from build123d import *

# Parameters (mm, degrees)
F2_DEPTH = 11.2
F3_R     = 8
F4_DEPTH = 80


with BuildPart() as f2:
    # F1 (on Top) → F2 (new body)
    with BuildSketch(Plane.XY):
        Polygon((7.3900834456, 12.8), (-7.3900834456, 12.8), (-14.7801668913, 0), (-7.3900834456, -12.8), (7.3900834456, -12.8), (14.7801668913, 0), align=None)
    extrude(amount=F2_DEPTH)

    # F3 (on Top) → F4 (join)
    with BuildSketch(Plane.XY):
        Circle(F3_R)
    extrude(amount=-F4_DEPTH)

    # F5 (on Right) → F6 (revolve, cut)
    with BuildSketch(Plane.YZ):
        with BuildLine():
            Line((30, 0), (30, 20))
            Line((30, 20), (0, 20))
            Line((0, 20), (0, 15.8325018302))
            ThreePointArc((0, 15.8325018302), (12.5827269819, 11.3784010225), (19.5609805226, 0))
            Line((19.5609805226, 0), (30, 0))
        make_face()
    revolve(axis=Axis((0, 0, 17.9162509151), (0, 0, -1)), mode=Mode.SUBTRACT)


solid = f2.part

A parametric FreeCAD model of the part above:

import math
import FreeCAD as App
import Part
import Sketcher

V = App.Vector
Q = App.Units.Quantity


def add_polygon(sketch, points):
    """Adds a closed chain of lines whose ends are joined by coincident constraints."""
    first, n = sketch.GeometryCount, len(points)
    for a, b in zip(points, points[1:] + points[:1]):
        sketch.addGeometry(Part.LineSegment(App.Vector(*a, 0), App.Vector(*b, 0)), False)
    for i in range(n):
        sketch.addConstraint(Sketcher.Constraint("Coincident", first + i, 2, first + (i + 1) % n, 1))

doc = App.newDocument("Part")
params = doc.addObject("Spreadsheet::Sheet", "Params")
for row, (alias, value) in enumerate([
    ("pad1_length", "11.2 mm"),
    ("sketch2_diameter", "16 mm"),
    ("pad2_length", "80 mm"),
    ("sketch3_radius", "20 mm"),
    ("sketch3_width", "30 mm"),
    ("sketch3_height", "20 mm"),
    ("groove_angle", "360 deg"),
], start=1):
    params.set(f"A{row}", alias)
    params.set(f"B{row}", "=" + value)
    params.setAlias(f"B{row}", alias)

body = doc.addObject("PartDesign::Body", "Body")

# Sketch on XY plane
sketch1 = body.newObject("Sketcher::SketchObject", "Sketch")
sketch1.AttachmentSupport = (doc.getObject("XY_Plane"), [""])
sketch1.MapMode = "FlatFace"
add_polygon(sketch1, [(7, 13), (-7, 13), (-15, 0), (-7, -13), (7, -13), (15, 0)])  # lines 0-5
sketch1.addConstraint([
    Sketcher.Constraint("Horizontal", 0),
    Sketcher.Constraint("Horizontal", 3),
    Sketcher.Constraint("Symmetric", 0, 2, 3, 2, -1, 1),
    Sketcher.Constraint("Symmetric", 1, 2, 4, 2, -1, 1),
    Sketcher.Constraint("PointOnObject", 1, 2, -1),
    Sketcher.Constraint("Parallel", 2, 5),
    Sketcher.Constraint("Vertical", 0, 2, 2, 2),
    Sketcher.Constraint("Angle", 1, Q("-120 deg")),
    Sketcher.Constraint("DistanceY", -1, 1, 0, 2, 12.8),
    Sketcher.Constraint("DistanceX", 0, 2, 0, 1, 14.780167),
])
pad1 = body.newObject("PartDesign::Pad", "Pad")
pad1.Profile = sketch1
pad1.setExpression("Length", "Params.pad1_length")

# Sketch on XY plane
sketch2 = body.newObject("Sketcher::SketchObject", "Sketch001")
sketch2.AttachmentSupport = (doc.getObject("XY_Plane"), [""])
sketch2.MapMode = "FlatFace"
sketch2.addGeometry(Part.Circle(V(0, 0, 0), V(0, 0, 1), 8), False)
sketch2.addConstraint([
    Sketcher.Constraint("Coincident", 0, 3, -1, 1),
    Sketcher.Constraint("Diameter", 0, 16.0),
])
sketch2.setExpression("Constraints[1]", "Params.sketch2_diameter")
pad2 = body.newObject("PartDesign::Pad", "Pad001")
pad2.Profile = sketch2
pad2.setExpression("Length", "Params.pad2_length")
pad2.Reversed = True

# Sketch on YZ plane
sketch3 = body.newObject("Sketcher::SketchObject", "Sketch002")
sketch3.AttachmentSupport = (doc.getObject("YZ_Plane"), [""])
sketch3.MapMode = "FlatFace"
sketch3.addGeometry([
    Part.LineSegment(V(30, 0, 0), V(30, 20, 0)),  # 0
    Part.LineSegment(V(30, 20, 0), V(0, 20, 0)),  # 1
    Part.LineSegment(V(0, 20, 0), V(0, 15.8, 0)),  # 2
    Part.ArcOfCircle(Part.Circle(V(0, -4.2, 0), V(0, 0, 1), 20), math.radians(12), math.radians(90)),  # 3
    Part.LineSegment(V(19.6, 0, 0), V(30, 0, 0)),  # 4
], False)
sketch3.addConstraint([
    Sketcher.Constraint("Coincident", 0, 2, 1, 1),
    Sketcher.Constraint("Coincident", 1, 2, 2, 1),
    Sketcher.Constraint("Coincident", 2, 2, 3, 2),
    Sketcher.Constraint("Coincident", 3, 1, 4, 1),
    Sketcher.Constraint("Coincident", 4, 2, 0, 1),
    Sketcher.Constraint("Vertical", 0),
    Sketcher.Constraint("Horizontal", 1),
    Sketcher.Constraint("Vertical", 2),
    Sketcher.Constraint("Horizontal", 4),
    Sketcher.Constraint("PointOnObject", 3, 3, -2),
    Sketcher.Constraint("PointOnObject", 1, 2, -2),
    Sketcher.Constraint("PointOnObject", 3, 1, -1),
    Sketcher.Constraint("Radius", 3, 20.0),
    Sketcher.Constraint("DistanceX", 1, 2, 1, 1, 30.0),
    Sketcher.Constraint("DistanceY", 0, 1, 0, 2, 20.0),
    Sketcher.Constraint("DistanceY", 2, 2, 2, 1, 4.167498),
])
sketch3.setExpression("Constraints[12]", "Params.sketch3_radius")
sketch3.setExpression("Constraints[13]", "Params.sketch3_width")
sketch3.setExpression("Constraints[14]", "Params.sketch3_height")
groove = body.newObject("PartDesign::Groove", "Groove")
groove.Profile = sketch3
groove.ReferenceAxis = (sketch3, ["V_Axis"])
groove.setExpression("Angle", "Params.groove_angle")

doc.recompute()
